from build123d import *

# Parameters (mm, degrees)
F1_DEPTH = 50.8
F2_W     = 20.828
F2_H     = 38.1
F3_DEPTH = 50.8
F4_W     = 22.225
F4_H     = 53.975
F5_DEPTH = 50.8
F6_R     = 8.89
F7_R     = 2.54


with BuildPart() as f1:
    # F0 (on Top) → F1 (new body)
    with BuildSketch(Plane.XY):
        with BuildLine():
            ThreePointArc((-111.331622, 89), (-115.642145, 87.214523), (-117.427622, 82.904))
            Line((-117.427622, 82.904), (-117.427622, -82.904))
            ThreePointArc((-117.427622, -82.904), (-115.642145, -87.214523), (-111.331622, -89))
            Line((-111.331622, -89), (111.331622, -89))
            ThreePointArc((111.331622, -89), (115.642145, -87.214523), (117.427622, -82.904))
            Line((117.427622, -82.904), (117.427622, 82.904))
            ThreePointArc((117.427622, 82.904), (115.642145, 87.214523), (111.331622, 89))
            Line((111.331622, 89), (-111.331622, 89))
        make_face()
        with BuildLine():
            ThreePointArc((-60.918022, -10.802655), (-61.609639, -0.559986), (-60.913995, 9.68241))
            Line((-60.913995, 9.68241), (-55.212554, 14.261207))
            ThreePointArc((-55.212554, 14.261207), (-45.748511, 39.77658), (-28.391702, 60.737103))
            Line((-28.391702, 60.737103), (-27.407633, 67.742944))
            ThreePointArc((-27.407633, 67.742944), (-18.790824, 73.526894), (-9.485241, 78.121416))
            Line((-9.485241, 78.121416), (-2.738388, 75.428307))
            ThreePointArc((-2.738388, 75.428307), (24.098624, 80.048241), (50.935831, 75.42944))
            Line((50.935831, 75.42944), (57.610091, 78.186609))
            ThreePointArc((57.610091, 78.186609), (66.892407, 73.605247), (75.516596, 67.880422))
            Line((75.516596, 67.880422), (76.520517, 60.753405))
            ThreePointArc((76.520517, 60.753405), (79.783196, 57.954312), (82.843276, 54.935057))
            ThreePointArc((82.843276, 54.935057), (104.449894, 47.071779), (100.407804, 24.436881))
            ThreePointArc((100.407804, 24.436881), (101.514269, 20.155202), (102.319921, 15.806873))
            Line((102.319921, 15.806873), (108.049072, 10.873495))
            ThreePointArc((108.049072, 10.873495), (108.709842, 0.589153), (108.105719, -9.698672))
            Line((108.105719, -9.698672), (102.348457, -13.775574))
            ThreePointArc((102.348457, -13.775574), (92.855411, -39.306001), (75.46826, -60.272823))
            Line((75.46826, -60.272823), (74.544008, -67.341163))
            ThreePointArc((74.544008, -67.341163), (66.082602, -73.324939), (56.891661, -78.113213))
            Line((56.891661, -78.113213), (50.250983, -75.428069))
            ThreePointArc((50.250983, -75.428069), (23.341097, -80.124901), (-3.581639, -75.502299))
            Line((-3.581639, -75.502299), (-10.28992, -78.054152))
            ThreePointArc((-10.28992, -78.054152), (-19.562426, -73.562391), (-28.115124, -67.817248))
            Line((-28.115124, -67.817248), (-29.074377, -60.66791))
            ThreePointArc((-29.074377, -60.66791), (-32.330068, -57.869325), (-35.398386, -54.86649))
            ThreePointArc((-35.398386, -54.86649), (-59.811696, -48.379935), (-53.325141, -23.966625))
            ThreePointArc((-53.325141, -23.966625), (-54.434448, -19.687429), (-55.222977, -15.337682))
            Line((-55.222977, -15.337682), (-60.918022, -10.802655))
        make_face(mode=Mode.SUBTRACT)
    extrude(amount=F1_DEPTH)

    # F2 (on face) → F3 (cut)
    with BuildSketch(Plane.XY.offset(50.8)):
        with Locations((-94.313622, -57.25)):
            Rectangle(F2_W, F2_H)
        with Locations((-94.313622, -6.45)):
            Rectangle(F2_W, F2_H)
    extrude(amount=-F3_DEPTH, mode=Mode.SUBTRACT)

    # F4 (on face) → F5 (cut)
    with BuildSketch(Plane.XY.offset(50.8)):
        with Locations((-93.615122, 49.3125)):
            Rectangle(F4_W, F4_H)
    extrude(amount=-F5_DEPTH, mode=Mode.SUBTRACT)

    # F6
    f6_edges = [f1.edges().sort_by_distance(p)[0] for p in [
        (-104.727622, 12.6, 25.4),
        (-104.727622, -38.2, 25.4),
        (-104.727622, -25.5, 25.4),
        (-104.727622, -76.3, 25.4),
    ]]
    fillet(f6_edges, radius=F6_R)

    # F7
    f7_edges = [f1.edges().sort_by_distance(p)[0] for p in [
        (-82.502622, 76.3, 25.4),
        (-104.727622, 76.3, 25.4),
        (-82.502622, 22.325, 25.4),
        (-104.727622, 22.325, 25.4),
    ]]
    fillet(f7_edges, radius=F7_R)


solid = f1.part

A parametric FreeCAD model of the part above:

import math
import FreeCAD as App
import Part
import Sketcher
from FreeCAD import Vector
Q = App.Units.Quantity


def edges_at(feature, points):
    """Names of the edges that pass closest to the given points."""
    edges = feature.Shape.Edges
    near = lambda p: min(range(len(edges)), key=lambda i: edges[i].distToShape(Part.Vertex(*p))[0])
    return sorted({f"Edge{near(p) + 1}" for p in points})


def add_polygon(sketch, points):
    """Adds a closed chain of lines whose ends are joined by coincident constraints."""
    first, n = sketch.GeometryCount, len(points)
    for a, b in zip(points, points[1:] + points[:1]):
        sketch.addGeometry(Part.LineSegment(App.Vector(*a, 0), App.Vector(*b, 0)), False)
    for i in range(n):
        sketch.addConstraint(Sketcher.Constraint("Coincident", first + i, 2, first + (i + 1) % n, 1))

doc = App.newDocument("Part")
body = doc.addObject("PartDesign::Body", "Body")

sketch1 = body.newObject("Sketcher::SketchObject", "Sketch")
sketch1.AttachmentSupport = (doc.getObject("XY_Plane"), [""])
sketch1.MapMode = "FlatFace"
sketch1.addGeometry([
    Part.ArcOfCircle(Part.Circle(Vector(-111, 83, 0), Vector(0, 0, 1), 6), math.radians(90), math.radians(180)),
    Part.LineSegment(Vector(-117, 83, 0), Vector(-117, -83, 0)),
    Part.ArcOfCircle(Part.Circle(Vector(-111, -83, 0), Vector(0, 0, 1), 6), math.radians(180), math.radians(270)),
    Part.LineSegment(Vector(-111, -89, 0), Vector(111, -89, 0)),
    Part.ArcOfCircle(Part.Circle(Vector(111, -83, 0), Vector(0, 0, 1), 6), math.radians(-90), math.radians(0)),
    Part.LineSegment(Vector(117, -83, 0), Vector(117, 83, 0)),
    Part.ArcOfCircle(Part.Circle(Vector(111, 83, 0), Vector(0, 0, 1), 6), math.radians(0), math.radians(90)),
    Part.LineSegment(Vector(111, 89, 0), Vector(-111, 89, 0)),
    Part.LineSegment(Vector(-55, -15, 0), Vector(-61, -11, 0)),
    Part.ArcOfCircle(Part.Circle(Vector(14, -1, 0), Vector(0, 0, 1), 76), math.radians(172.24), math.radians(187.74)),
    Part.LineSegment(Vector(-61, 10, 0), Vector(-55, 14, 0)),
    Part.ArcOfCircle(Part.Circle(Vector(25, -1, 0), Vector(0, 0, 1), 81), math.radians(131), math.radians(169)),
    Part.LineSegment(Vector(-28, 61, 0), Vector(-27, 68, 0)),
    Part.ArcOfCircle(Part.Circle(Vector(20, 6, 0), Vector(0, 0, 1), 78), math.radians(112.48), math.radians(127.67)),
    Part.LineSegment(Vector(-9, 78, 0), Vector(-3, 75, 0)),
    Part.ArcOfCircle(Part.Circle(Vector(24, 0, 0), Vector(0, 0, 1), 80), math.radians(70), math.radians(110)),
    Part.LineSegment(Vector(51, 75, 0), Vector(58, 78, 0)),
    Part.ArcOfCircle(Part.Circle(Vector(26, 3, 0), Vector(0, 0, 1), 81), math.radians(52.77), math.radians(67.38)),
    Part.LineSegment(Vector(76, 68, 0), Vector(77, 61, 0)),
    Part.ArcOfCircle(Part.Circle(Vector(38, 13, 0), Vector(0, 0, 1), 62), math.radians(43.39), math.radians(51.37)),
    Part.ArcOfCircle(Part.Circle(Vector(89, 38, 0), Vector(0, 0, 1), 18), math.radians(-50), math.radians(110)),
    Part.ArcOfCircle(Part.Circle(Vector(40, 6, 0), Vector(0, 0, 1), 63), math.radians(8.5), math.radians(16.49)),
    Part.LineSegment(Vector(102, 16, 0), Vector(108, 11, 0)),
    Part.ArcOfCircle(Part.Circle(Vector(25, 0, 0), Vector(0, 0, 1), 84), math.radians(-6.88), math.radians(7.19)),
    Part.LineSegment(Vector(108, -10, 0), Vector(102, -14, 0)),
    Part.ArcOfCircle(Part.Circle(Vector(22, 1, 0), Vector(0, 0, 1), 81), math.radians(-49), math.radians(-11)),
    Part.LineSegment(Vector(75, -60, 0), Vector(75, -67, 0)),
    Part.ArcOfCircle(Part.Circle(Vector(26, -8, 0), Vector(0, 0, 1), 77), math.radians(-66.36), math.radians(-50.86)),
    Part.LineSegment(Vector(57, -78, 0), Vector(50, -75, 0)),
    Part.ArcOfCircle(Part.Circle(Vector(23, 0, 0), Vector(0, 0, 1), 80), math.radians(-110), math.radians(-70)),
    Part.LineSegment(Vector(-4, -76, 0), Vector(-10, -78, 0)),
    Part.ArcOfCircle(Part.Circle(Vector(17, -10, 0), Vector(0, 0, 1), 73), math.radians(-127.91), math.radians(-111.82)),
    Part.LineSegment(Vector(-28, -68, 0), Vector(-29, -61, 0)),
    Part.ArcOfCircle(Part.Circle(Vector(13, -9, 0), Vector(0, 0, 1), 66), math.radians(-136.23), math.radians(-128.83)),
    Part.ArcOfCircle(Part.Circle(Vector(-44, -39, 0), Vector(0, 0, 1), 18), math.radians(120), math.radians(300)),
    Part.ArcOfCircle(Part.Circle(Vector(4, -7, 0), Vector(0, 0, 1), 59), math.radians(-171.85), math.radians(-163.34)),
], False)
sketch1.addConstraint([
    Sketcher.Constraint("Tangent", 0, 2, 1, 1),
    Sketcher.Constraint("Tangent", 1, 2, 2, 1),
    Sketcher.Constraint("Tangent", 2, 2, 3, 1),
    Sketcher.Constraint("Tangent", 3, 2, 4, 1),
    Sketcher.Constraint("Tangent", 4, 2, 5, 1),
    Sketcher.Constraint("Tangent", 5, 2, 6, 1),
    Sketcher.Constraint("Tangent", 6, 2, 7, 1),
    Sketcher.Constraint("Tangent", 7, 2, 0, 1),
    Sketcher.Constraint("Coincident", 8, 2, 9, 2),
    Sketcher.Constraint("Coincident", 9, 1, 10, 1),
    Sketcher.Constraint("Coincident", 10, 2, 11, 2),
    Sketcher.Constraint("Coincident", 11, 1, 12, 1),
    Sketcher.Constraint("Coincident", 12, 2, 13, 2),
    Sketcher.Constraint("Coincident", 13, 1, 14, 1),
    Sketcher.Constraint("Coincident", 14, 2, 15, 2),
    Sketcher.Constraint("Coincident", 15, 1, 16, 1),
    Sketcher.Constraint("Coincident", 16, 2, 17, 2),
    Sketcher.Constraint("Coincident", 17, 1, 18, 1),
    Sketcher.Constraint("Coincident", 18, 2, 19, 2),
    Sketcher.Constraint("Coincident", 19, 1, 20, 2),
    Sketcher.Constraint("Coincident", 20, 1, 21, 2),
    Sketcher.Constraint("Coincident", 21, 1, 22, 1),
    Sketcher.Constraint("Coincident", 22, 2, 23, 2),
    Sketcher.Constraint("Coincident", 23, 1, 24, 1),
    Sketcher.Constraint("Coincident", 24, 2, 25, 2),
    Sketcher.Constraint("Coincident", 25, 1, 26, 1),
    Sketcher.Constraint("Coincident", 26, 2, 27, 2),
    Sketcher.Constraint("Coincident", 27, 1, 28, 1),
    Sketcher.Constraint("Coincident", 28, 2, 29, 2),
    Sketcher.Constraint("Coincident", 29, 1, 30, 1),
    Sketcher.Constraint("Coincident", 30, 2, 31, 2),
    Sketcher.Constraint("Coincident", 31, 1, 32, 1),
    Sketcher.Constraint("Coincident", 32, 2, 33, 2),
    Sketcher.Constraint("Coincident", 33, 1, 34, 2),
    Sketcher.Constraint("Coincident", 34, 1, 35, 2),
    Sketcher.Constraint("Coincident", 35, 1, 8, 1),
    Sketcher.Constraint("Vertical", 1),
    Sketcher.Constraint("Horizontal", 3),
    Sketcher.Constraint("Vertical", 5),
    Sketcher.Constraint("Horizontal", 7),
    Sketcher.Constraint("Equal", 0, 2),
    Sketcher.Constraint("Equal", 2, 4),
    Sketcher.Constraint("Equal", 4, 6),
    Sketcher.Constraint("Equal", 20, 34),
    Sketcher.Constraint("Symmetric", 0, 3, 4, 3, -1, 1),
    Sketcher.Constraint("Radius", 0, Q("0.24 in")),
    Sketcher.Constraint("Radius", 17, 81.215498),
    Sketcher.Constraint("Radius", 19, 61.765711),
    Sketcher.Constraint("Radius", 23, 83.962758),
    Sketcher.Constraint("Radius", 25, 81.366119),
    Sketcher.Constraint("Radius", 33, 66.497739),
    Sketcher.Constraint("DistanceY", 1, 2, 1, 1, 165.808),
    Sketcher.Constraint("Radius", 9, 75.970273),
    Sketcher.Constraint("Radius", 11, 81.270907),
    Sketcher.Constraint("Radius", 13, 78.360414),
    Sketcher.Constraint("Radius", 15, 80.267375),
    Sketcher.Constraint("Radius", 20, 17.861763),
    Sketcher.Constraint("Radius", 21, 63.474578),
    Sketcher.Constraint("Radius", 27, 76.686686),
    Sketcher.Constraint("Radius", 29, 80.069398),
    Sketcher.Constraint("Radius", 31, 73.445146),
    Sketcher.Constraint("Radius", 35, 59.498827),
    Sketcher.Constraint("DistanceX", 30, 2, 28, 2, Q("2.3835001 in")),
    Sketcher.Constraint("DistanceY", 30, 2, 33, 1, Q("0.9129001 in")),
    Sketcher.Constraint("DistanceY", -1, 1, 20, 3, 38.157499),
    Sketcher.Constraint("DistanceY", 29, 1, -1, 1, 75.502299),
    Sketcher.Constraint("DistanceY", 11, 3, 9, 3, 0.2703),
    Sketcher.Constraint("DistanceX", 13, 3, 17, 3, 5.902199),
    Sketcher.Constraint("DistanceY", 29, 3, 17, 3, 3.271501),
    Sketcher.Constraint("DistanceY", 35, 3, 9, 3, 6.331898),
    Sketcher.Constraint("DistanceX", 9, 1, 35, 3, 64.589498),
    Sketcher.Constraint("DistanceX", 27, 1, 25, 1, 18.576599),
    Sketcher.Constraint("DistanceX", 29, 1, 27, 1, 60.4733),
    Sketcher.Constraint("Distance", 8, 7.28011),
    Sketcher.Constraint("Distance", 16, 7.221338),
    Sketcher.Constraint("Distance", 26, 7.128511),
    Sketcher.Constraint("DistanceX", 3, 1, 3, 2, 222.663244),
    Sketcher.Constraint("DistanceY", 9, 3, -1, 1, 0.574921),
    Sketcher.Constraint("DistanceX", -1, 1, 11, 3, 24.64204),
    Sketcher.Constraint("DistanceY", -1, 1, 13, 3, 5.715589),
    Sketcher.Constraint("DistanceX", -1, 1, 15, 3, 24.100318),
    Sketcher.Constraint("DistanceX", -1, 1, 19, 3, 37.95883),
    Sketcher.Constraint("DistanceY", -1, 1, 19, 3, 12.50406),
    Sketcher.Constraint("DistanceX", -1, 1, 20, 3, 88.971581),
    Sketcher.Constraint("DistanceX", -1, 1, 21, 3, 39.542609),
    Sketcher.Constraint("DistanceY", 27, 3, -1, 1, 7.864029),
    Sketcher.Constraint("DistanceX", -1, 1, 29, 3, 23.230689),
    Sketcher.Constraint("DistanceY", 29, 3, -1, 1, 0.055579),
    Sketcher.Constraint("DistanceX", -1, 1, 31, 3, 17.014051),
    Sketcher.Constraint("DistanceY", -1, 1, 9, 1, 9.68241),
    Sketcher.Constraint("DistanceX", 13, 1, -1, 1, 9.485241),
    Sketcher.Constraint("DistanceX", 14, 2, -1, 1, 2.738388),
    Sketcher.Constraint("DistanceX", -1, 1, 15, 1, 50.935831),
    Sketcher.Constraint("DistanceY", -1, 1, 15, 1, 75.42944),
    Sketcher.Constraint("DistanceX", -1, 1, 16, 2, 57.610091),
    Sketcher.Constraint("DistanceY", -1, 1, 17, 1, 67.880422),
    Sketcher.Constraint("DistanceY", -1, 1, 20, 1, 24.436881),
    Sketcher.Constraint("DistanceX", -1, 1, 21, 1, 102.319921),
    Sketcher.Constraint("DistanceX", -1, 1, 22, 2, 108.049072),
    Sketcher.Constraint("DistanceX", -1, 1, 23, 1, 108.105719),
    Sketcher.Constraint("DistanceY", 23, 1, -1, 1, 9.698672),
    Sketcher.Constraint("DistanceX", -1, 1, 26, 2, 74.544008),
    Sketcher.Constraint("DistanceY", 28, 2, -1, 1, 75.428069),
    Sketcher.Constraint("DistanceY", 30, 2, -1, 1, 78.054152),
    Sketcher.Constraint("DistanceY", 31, 1, -1, 1, 67.817248),
    Sketcher.Constraint("DistanceY", 32, 2, -1, 1, 60.66791),
    Sketcher.Constraint("DistanceX", 34, 1, -1, 1, 53.325141),
    Sketcher.Constraint("DistanceY", 35, 1, -1, 1, 15.337682),
    Sketcher.Constraint("DistanceX", 9, 3, 4, 3, 96.970989),
    Sketcher.Constraint("DistanceY", 15, 3, 23, 3, 0.57709),
    Sketcher.Constraint("DistanceY", 15, 3, 25, 3, 1.635951),
    Sketcher.Constraint("DistanceX", 25, 3, 17, 3, 3.96619),
    Sketcher.Constraint("DistanceY", 31, 3, 33, 3, 1.005631),
    Sketcher.Constraint("DistanceX", 34, 3, 33, 3, 56.984429),
    Sketcher.Constraint("DistanceX", 9, 1, 10, 2, 5.701441),
    Sketcher.Constraint("DistanceX", 10, 2, 11, 1, 26.820852),
    Sketcher.Constraint("DistanceX", 11, 1, 12, 2, 0.984069),
    Sketcher.Constraint("DistanceX", 17, 1, 18, 2, 1.003921),
    Sketcher.Constraint("DistanceX", 24, 2, 23, 1, 5.757262),
])
pad1 = body.newObject("PartDesign::Pad", "Pad")
pad1.Profile = sketch1
pad1.Length = Q("2 in")

sketch2 = body.newObject("Sketcher::SketchObject", "Sketch001")
sketch2.AttachmentSupport = (doc.getObject("XY_Plane"), [""])
sketch2.MapMode = "FlatFace"
sketch2.AttachmentOffset = App.Placement(Vector(0, 0, 2 * 25.4), App.Rotation())
add_polygon(sketch2, [(-105, -38), (-105, -76), (-84, -76), (-84, -38)])
add_polygon(sketch2, [(-105, 13), (-105, -26), (-84, -26), (-84, 13)])
sketch2.addConstraint([
    Sketcher.Constraint("Vertical", 0),
    Sketcher.Constraint("Horizontal", 1),
    Sketcher.Constraint("Vertical", 2),
    Sketcher.Constraint("Horizontal", 3),
    Sketcher.Constraint("Vertical", 4),
    Sketcher.Constraint("Horizontal", 5),
    Sketcher.Constraint("Vertical", 6),
    Sketcher.Constraint("Horizontal", 7),
    Sketcher.Constraint("Vertical", 3, 2, 4, 2),
    Sketcher.Constraint("Vertical", 2, 2, 5, 2),
    Sketcher.Constraint("Equal", 2, 4),
    Sketcher.Constraint("DistanceY", 0, 2, 0, 1, Q("1.5 in")),
    Sketcher.Constraint("DistanceY", 0, 2, 4, 2, Q("2 in")),
    Sketcher.Constraint("DistanceX", 1, 1, 1, 2, Q("0.82 in")),
    Sketcher.Constraint("DistanceY", 0, 2, -1, 1, 76.3),
    Sketcher.Constraint("DistanceX", 0, 2, -1, 1, 104.727622),
])
pocket1 = body.newObject("PartDesign::Pocket", "Pocket")
pocket1.Profile = sketch2
pocket1.Length = Q("2 in")

sketch3 = body.newObject("Sketcher::SketchObject", "Sketch002")
sketch3.AttachmentSupport = (doc.getObject("XY_Plane"), [""])
sketch3.MapMode = "FlatFace"
sketch3.AttachmentOffset = App.Placement(Vector(0, 0, 2 * 25.4), App.Rotation())
add_polygon(sketch3, [(-105, 76), (-105, 22), (-83, 22), (-83, 76)])
sketch3.addConstraint([
    Sketcher.Constraint("Vertical", 0),
    Sketcher.Constraint("Horizontal", 1),
    Sketcher.Constraint("Vertical", 2),
    Sketcher.Constraint("Horizontal", 3),
    Sketcher.Constraint("DistanceX", 1, 1, 1, 2, Q("0.875 in")),
    Sketcher.Constraint("DistanceY", 0, 2, 0, 1, Q("2.125 in")),
    Sketcher.Constraint("DistanceY", -1, 1, 0, 2, 22.325),
    Sketcher.Constraint("DistanceX", 0, 2, -1, 1, 104.727622),
])
pocket2 = body.newObject("PartDesign::Pocket", "Pocket001")
pocket2.Profile = sketch3
pocket2.Length = Q("2 in")
doc.recompute()

fillet = body.newObject("PartDesign::Fillet", "Fillet")
fillet.Base = (pocket2, edges_at(pocket2, [
    (-104.728, 12.6, 25.4),
    (-104.728, -38.2, 25.4),
    (-104.728, -25.5, 25.4),
    (-104.728, -76.3, 25.4),
]))
fillet.Radius = Q("0.35 in")
doc.recompute()

fillet2 = body.newObject("PartDesign::Fillet", "Fillet001")
fillet2.Base = (fillet, edges_at(fillet, [
    (-82.503, 76.3, 25.4),
    (-104.728, 76.3, 25.4),
    (-82.503, 22.325, 25.4),
    (-104.728, 22.325, 25.4),
]))
fillet2.Radius = Q("0.1 in")

doc.recompute()
